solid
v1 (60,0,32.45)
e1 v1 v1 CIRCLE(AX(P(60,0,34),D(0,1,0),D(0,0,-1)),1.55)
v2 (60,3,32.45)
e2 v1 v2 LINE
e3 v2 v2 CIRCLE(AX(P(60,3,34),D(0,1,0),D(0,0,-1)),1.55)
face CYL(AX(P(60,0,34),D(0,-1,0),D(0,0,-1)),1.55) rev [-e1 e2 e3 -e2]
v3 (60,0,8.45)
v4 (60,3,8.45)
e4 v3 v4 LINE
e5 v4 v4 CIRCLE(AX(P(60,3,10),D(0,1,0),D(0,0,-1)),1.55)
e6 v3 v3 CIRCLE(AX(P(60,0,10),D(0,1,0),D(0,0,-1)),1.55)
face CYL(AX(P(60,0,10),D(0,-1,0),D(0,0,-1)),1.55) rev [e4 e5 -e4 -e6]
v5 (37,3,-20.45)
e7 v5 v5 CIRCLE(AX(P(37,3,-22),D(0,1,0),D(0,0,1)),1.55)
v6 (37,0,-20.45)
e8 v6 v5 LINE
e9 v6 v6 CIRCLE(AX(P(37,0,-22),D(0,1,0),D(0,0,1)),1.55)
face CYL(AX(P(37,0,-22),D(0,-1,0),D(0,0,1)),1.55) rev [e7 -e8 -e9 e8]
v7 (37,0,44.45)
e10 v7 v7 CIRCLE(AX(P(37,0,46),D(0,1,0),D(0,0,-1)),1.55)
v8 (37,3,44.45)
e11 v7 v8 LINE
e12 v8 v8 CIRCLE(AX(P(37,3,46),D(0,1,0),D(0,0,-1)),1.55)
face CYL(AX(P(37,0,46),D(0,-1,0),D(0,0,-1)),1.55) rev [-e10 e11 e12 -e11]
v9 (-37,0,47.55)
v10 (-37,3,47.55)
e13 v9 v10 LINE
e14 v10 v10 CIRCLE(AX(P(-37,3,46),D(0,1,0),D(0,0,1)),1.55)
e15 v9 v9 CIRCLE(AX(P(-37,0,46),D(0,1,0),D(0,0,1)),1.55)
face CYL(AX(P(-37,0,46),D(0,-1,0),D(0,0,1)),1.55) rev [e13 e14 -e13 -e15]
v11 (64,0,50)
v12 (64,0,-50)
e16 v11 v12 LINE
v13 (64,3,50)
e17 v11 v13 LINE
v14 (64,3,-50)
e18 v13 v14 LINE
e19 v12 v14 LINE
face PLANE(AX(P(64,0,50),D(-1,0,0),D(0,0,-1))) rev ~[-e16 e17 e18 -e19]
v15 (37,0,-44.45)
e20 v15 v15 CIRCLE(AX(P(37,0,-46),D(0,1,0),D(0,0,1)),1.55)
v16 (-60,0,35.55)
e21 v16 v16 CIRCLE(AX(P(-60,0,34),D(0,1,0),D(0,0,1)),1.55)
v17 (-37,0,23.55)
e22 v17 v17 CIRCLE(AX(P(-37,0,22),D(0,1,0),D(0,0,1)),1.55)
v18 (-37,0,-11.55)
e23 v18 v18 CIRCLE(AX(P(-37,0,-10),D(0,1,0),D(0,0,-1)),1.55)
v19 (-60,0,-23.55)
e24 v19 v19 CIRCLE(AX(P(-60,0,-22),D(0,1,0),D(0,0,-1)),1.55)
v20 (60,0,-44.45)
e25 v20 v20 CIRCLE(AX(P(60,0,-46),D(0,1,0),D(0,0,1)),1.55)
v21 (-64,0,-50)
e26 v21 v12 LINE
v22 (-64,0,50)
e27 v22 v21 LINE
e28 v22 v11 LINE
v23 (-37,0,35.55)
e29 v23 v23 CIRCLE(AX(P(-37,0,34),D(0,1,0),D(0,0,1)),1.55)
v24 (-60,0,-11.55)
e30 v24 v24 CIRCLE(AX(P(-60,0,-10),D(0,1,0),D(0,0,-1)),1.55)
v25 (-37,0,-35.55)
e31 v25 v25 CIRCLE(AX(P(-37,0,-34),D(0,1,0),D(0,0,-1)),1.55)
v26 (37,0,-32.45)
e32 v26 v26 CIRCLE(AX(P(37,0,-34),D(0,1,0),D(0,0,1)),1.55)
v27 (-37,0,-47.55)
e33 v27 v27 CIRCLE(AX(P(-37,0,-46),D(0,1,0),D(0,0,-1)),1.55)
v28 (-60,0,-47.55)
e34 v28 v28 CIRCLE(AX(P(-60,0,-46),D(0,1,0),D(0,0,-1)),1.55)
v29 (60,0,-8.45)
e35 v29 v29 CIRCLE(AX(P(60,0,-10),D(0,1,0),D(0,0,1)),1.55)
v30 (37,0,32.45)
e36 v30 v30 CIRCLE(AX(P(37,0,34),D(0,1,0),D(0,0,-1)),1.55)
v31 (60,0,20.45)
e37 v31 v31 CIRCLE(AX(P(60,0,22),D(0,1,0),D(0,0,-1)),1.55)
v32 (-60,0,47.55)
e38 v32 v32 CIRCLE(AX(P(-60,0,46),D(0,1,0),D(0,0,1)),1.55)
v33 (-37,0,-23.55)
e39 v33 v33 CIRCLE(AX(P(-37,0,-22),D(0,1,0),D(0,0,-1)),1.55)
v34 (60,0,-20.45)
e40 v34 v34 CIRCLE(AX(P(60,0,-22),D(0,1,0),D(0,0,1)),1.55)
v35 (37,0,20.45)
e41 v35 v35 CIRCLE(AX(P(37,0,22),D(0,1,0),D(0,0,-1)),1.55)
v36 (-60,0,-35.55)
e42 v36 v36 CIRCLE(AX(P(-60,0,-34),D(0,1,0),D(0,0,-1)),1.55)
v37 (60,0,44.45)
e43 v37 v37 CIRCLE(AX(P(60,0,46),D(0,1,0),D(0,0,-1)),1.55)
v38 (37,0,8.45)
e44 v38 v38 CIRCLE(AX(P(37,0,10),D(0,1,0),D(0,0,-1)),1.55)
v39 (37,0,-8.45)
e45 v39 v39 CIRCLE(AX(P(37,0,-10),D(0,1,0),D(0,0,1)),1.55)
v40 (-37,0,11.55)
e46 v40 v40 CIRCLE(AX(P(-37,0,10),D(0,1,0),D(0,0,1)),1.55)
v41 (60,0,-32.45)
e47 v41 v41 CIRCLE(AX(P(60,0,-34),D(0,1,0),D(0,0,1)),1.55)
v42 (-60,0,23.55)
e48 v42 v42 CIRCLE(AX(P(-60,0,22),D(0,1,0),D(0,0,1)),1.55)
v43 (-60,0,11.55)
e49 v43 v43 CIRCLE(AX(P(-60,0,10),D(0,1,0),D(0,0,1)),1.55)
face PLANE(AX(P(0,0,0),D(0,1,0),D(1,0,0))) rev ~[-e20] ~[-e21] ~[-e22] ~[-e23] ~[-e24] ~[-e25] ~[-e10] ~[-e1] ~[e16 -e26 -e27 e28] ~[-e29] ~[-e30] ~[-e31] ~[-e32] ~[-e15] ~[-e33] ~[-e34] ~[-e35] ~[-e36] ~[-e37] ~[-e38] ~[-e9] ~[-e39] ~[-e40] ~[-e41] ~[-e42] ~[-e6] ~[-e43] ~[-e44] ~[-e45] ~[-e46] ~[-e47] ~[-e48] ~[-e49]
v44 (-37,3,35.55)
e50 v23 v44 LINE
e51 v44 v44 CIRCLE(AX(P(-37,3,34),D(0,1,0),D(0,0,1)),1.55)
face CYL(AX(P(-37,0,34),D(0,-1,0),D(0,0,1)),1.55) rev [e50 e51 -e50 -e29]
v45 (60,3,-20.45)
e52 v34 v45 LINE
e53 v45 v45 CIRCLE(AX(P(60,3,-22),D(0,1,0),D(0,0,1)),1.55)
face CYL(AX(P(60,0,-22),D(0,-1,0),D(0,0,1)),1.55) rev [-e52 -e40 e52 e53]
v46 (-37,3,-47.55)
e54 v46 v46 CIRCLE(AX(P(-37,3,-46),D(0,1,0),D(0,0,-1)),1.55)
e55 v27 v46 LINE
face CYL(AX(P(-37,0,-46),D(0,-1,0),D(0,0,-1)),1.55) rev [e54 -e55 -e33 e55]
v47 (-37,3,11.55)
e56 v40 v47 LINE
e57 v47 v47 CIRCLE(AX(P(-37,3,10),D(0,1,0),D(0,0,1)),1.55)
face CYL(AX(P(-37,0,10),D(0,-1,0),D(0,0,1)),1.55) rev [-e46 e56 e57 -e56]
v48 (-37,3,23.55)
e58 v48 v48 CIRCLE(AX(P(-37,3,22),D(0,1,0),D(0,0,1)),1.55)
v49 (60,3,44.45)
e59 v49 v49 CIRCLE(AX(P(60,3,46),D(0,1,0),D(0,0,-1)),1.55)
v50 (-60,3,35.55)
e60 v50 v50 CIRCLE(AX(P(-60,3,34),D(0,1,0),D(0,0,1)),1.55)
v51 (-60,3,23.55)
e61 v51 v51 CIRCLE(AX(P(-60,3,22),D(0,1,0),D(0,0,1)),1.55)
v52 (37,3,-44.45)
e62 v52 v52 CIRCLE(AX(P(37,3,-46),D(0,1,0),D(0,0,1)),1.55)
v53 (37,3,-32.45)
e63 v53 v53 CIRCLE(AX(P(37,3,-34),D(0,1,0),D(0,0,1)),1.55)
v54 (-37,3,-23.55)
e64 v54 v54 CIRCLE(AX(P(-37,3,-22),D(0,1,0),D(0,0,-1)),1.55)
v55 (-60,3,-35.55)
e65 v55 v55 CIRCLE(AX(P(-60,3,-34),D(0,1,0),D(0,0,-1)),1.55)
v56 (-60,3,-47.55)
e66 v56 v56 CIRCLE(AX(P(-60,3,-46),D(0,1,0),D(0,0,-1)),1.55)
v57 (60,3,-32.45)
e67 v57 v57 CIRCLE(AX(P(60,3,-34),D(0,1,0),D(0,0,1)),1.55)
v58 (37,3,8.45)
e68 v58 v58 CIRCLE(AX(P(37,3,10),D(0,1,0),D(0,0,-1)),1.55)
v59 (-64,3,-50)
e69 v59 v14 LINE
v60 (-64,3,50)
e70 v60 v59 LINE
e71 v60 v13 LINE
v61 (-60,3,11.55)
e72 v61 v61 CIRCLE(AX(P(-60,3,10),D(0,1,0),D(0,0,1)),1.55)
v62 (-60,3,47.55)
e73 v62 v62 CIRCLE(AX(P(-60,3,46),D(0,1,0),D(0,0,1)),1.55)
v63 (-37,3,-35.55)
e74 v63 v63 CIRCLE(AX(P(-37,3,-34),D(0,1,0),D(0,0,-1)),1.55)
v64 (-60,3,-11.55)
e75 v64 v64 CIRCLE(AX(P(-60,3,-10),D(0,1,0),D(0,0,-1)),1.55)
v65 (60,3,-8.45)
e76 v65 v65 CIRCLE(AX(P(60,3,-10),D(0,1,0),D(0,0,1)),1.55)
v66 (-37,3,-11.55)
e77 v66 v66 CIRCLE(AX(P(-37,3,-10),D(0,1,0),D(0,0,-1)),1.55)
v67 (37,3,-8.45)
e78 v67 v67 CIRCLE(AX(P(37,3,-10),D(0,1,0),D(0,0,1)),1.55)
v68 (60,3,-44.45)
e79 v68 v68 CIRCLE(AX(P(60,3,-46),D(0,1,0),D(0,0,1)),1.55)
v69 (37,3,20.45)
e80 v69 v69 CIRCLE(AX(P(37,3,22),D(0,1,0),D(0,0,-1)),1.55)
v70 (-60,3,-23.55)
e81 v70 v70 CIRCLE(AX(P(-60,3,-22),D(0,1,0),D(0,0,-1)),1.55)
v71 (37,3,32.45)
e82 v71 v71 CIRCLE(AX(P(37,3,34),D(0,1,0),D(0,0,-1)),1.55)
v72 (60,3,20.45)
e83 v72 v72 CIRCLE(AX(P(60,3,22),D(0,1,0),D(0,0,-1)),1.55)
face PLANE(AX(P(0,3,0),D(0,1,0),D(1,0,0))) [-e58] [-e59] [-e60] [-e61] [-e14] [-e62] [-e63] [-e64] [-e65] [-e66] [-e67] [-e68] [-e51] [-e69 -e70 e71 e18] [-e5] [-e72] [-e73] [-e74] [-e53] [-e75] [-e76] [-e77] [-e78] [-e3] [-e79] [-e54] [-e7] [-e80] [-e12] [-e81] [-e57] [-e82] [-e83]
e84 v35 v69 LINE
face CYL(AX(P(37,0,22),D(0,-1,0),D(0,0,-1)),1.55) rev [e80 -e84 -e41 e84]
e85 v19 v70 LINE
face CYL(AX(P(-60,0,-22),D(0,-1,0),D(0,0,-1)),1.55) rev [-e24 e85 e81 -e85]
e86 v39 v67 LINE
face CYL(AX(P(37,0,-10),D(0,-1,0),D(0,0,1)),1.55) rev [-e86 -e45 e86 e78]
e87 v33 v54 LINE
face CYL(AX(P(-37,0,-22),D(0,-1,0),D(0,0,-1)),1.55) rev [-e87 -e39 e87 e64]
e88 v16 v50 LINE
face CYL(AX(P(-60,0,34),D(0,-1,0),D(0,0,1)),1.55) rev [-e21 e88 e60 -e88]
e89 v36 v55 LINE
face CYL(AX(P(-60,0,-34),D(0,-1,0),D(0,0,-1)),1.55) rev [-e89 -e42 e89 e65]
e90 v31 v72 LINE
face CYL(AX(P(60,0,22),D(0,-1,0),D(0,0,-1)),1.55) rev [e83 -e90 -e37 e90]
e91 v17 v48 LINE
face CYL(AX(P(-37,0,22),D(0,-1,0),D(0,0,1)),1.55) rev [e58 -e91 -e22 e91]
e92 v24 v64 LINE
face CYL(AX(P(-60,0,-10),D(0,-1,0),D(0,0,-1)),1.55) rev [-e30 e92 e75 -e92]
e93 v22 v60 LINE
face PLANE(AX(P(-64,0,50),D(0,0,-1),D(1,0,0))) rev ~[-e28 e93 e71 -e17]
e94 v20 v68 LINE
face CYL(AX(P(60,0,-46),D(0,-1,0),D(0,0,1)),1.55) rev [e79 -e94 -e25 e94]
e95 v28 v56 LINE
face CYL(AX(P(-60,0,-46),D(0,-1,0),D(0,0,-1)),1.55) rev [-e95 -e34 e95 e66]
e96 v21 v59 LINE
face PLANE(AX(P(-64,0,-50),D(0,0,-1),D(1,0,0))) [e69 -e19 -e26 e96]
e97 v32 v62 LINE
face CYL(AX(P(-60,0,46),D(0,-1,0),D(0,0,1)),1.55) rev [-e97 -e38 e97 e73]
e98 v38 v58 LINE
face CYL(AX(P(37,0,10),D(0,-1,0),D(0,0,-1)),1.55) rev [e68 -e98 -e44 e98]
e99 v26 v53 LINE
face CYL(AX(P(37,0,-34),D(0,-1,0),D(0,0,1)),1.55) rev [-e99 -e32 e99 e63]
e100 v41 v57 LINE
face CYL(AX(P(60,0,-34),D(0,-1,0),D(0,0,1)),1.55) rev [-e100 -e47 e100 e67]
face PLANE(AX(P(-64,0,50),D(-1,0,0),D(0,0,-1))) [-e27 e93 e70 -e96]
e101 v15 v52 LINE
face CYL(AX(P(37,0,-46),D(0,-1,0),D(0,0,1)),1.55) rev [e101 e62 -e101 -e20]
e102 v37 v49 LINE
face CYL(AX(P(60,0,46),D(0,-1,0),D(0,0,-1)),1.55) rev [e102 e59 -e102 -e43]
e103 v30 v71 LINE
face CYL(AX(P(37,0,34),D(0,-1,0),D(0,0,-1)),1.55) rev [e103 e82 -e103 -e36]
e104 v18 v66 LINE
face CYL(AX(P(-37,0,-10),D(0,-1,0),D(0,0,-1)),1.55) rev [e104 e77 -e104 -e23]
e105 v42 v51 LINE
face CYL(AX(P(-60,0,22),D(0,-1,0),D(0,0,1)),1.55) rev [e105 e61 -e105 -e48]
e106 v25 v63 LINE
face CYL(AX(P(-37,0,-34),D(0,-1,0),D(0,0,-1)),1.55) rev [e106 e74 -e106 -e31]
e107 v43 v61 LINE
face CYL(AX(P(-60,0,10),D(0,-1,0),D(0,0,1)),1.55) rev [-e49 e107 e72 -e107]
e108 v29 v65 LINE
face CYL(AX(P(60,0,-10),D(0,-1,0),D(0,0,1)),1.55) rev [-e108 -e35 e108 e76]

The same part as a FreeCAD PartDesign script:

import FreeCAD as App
import Part
import Sketcher

V = App.Vector

doc = App.newDocument("Part")
body = doc.addObject("PartDesign::Body", "Body")

sketch1 = body.newObject("Sketcher::SketchObject", "Sketch")
sketch1.AttachmentSupport = (doc.getObject("XZ_Plane"), [""])
sketch1.MapMode = "FlatFace"
sketch1.addGeometry([
    Part.LineSegment(V(-64, -50, 0), V(-64, 50, 0)),
    Part.LineSegment(V(-64, 50, 0), V(64, 50, 0)),
    Part.LineSegment(V(64, 50, 0), V(64, -50, 0)),
    Part.LineSegment(V(64, -50, 0), V(-64, -50, 0)),
    Part.Circle(V(-60, 46, 0), V(0, 0, 1), 1.6),
    Part.Circle(V(-37, 46, 0), V(0, 0, 1), 1.6),
    Part.Circle(V(-60, 34, 0), V(0, 0, 1), 1.6),
    Part.Circle(V(-37, 34, 0), V(0, 0, 1), 1.6),
    Part.Circle(V(-60, 22, 0), V(0, 0, 1), 1.6),
    Part.Circle(V(-37, 22, 0), V(0, 0, 1), 1.6),
    Part.Circle(V(-60, 10, 0), V(0, 0, 1), 1.6),
    Part.Circle(V(-37, 10, 0), V(0, 0, 1), 1.6),
    Part.Circle(V(37, 46, 0), V(0, 0, 1), 1.6),
    Part.Circle(V(60, 46, 0), V(0, 0, 1), 1.6),
    Part.Circle(V(37, 34, 0), V(0, 0, 1), 1.6),
    Part.Circle(V(60, 34, 0), V(0, 0, 1), 1.6),
    Part.Circle(V(37, 22, 0), V(0, 0, 1), 1.6),
    Part.Circle(V(60, 22, 0), V(0, 0, 1), 1.6),
    Part.Circle(V(37, 10, 0), V(0, 0, 1), 1.6),
    Part.Circle(V(60, 10, 0), V(0, 0, 1), 1.6),
    Part.Circle(V(-60, -10, 0), V(0, 0, 1), 1.6),
    Part.Circle(V(-37, -10, 0), V(0, 0, 1), 1.6),
    Part.Circle(V(-60, -22, 0), V(0, 0, 1), 1.6),
    Part.Circle(V(-37, -22, 0), V(0, 0, 1), 1.6),
    Part.Circle(V(-60, -34, 0), V(0, 0, 1), 1.6),
    Part.Circle(V(-37, -34, 0), V(0, 0, 1), 1.6),
    Part.Circle(V(-60, -46, 0), V(0, 0, 1), 1.6),
    Part.Circle(V(-37, -46, 0), V(0, 0, 1), 1.6),
    Part.Circle(V(37, -10, 0), V(0, 0, 1), 1.6),
    Part.Circle(V(60, -10, 0), V(0, 0, 1), 1.6),
    Part.Circle(V(37, -22, 0), V(0, 0, 1), 1.6),
    Part.Circle(V(60, -22, 0), V(0, 0, 1), 1.6),
    Part.Circle(V(37, -34, 0), V(0, 0, 1), 1.6),
    Part.Circle(V(60, -34, 0), V(0, 0, 1), 1.6),
    Part.Circle(V(37, -46, 0), V(0, 0, 1), 1.6),
    Part.Circle(V(60, -46, 0), V(0, 0, 1), 1.6),
], False)
sketch1.addConstraint([
    Sketcher.Constraint("Coincident", 0, 2, 1, 1),
    Sketcher.Constraint("Coincident", 1, 2, 2, 1),
    Sketcher.Constraint("Coincident", 2, 2, 3, 1),
    Sketcher.Constraint("Coincident", 3, 2, 0, 1),
    Sketcher.Constraint("Vertical", 0),
    Sketcher.Constraint("Horizontal", 1),
    Sketcher.Constraint("Vertical", 2),
    Sketcher.Constraint("Horizontal", 3),
    Sketcher.Constraint("Equal", 4, 5),
    Sketcher.Constraint("Equal", 5, 6),
    Sketcher.Constraint("Equal", 6, 7),
    Sketcher.Constraint("Equal", 7, 8),
    Sketcher.Constraint("Equal", 8, 9),
    Sketcher.Constraint("Equal", 9, 10),
    Sketcher.Constraint("Equal", 10, 11),
    Sketcher.Constraint("Equal", 11, 12),
    Sketcher.Constraint("Equal", 12, 13),
    Sketcher.Constraint("Equal", 13, 14),
    Sketcher.Constraint("Equal", 14, 15),
    Sketcher.Constraint("Equal", 15, 16),
    Sketcher.Constraint("Equal", 16, 17),
    Sketcher.Constraint("Equal", 17, 18),
    Sketcher.Constraint("Equal", 18, 19),
    Sketcher.Constraint("Equal", 19, 20),
    Sketcher.Constraint("Equal", 20, 21),
    Sketcher.Constraint("Equal", 21, 22),
    Sketcher.Constraint("Equal", 22, 23),
    Sketcher.Constraint("Equal", 23, 24),
    Sketcher.Constraint("Equal", 24, 25),
    Sketcher.Constraint("Equal", 25, 26),
    Sketcher.Constraint("Equal", 26, 27),
    Sketcher.Constraint("Equal", 27, 28),
    Sketcher.Constraint("Equal", 28, 29),
    Sketcher.Constraint("Equal", 29, 30),
    Sketcher.Constraint("Equal", 30, 31),
    Sketcher.Constraint("Equal", 31, 32),
    Sketcher.Constraint("Equal", 32, 33),
    Sketcher.Constraint("Equal", 33, 34),
    Sketcher.Constraint("Equal", 34, 35),
    Sketcher.Constraint("Symmetric", 19, 3, 20, 3, -1, 1),
    Sketcher.Constraint("Symmetric", 18, 3, 21, 3, -1, 1),
    Sketcher.Constraint("Symmetric", 17, 3, 22, 3, -1, 1),
    Sketcher.Constraint("Symmetric", 16, 3, 23, 3, -1, 1),
    Sketcher.Constraint("Symmetric", 15, 3, 24, 3, -1, 1),
    Sketcher.Constraint("Symmetric", 14, 3, 25, 3, -1, 1),
    Sketcher.Constraint("Symmetric", 13, 3, 26, 3, -1, 1),
    Sketcher.Constraint("Symmetric", 12, 3, 27, 3, -1, 1),
    Sketcher.Constraint("Symmetric", 11, 3, 28, 3, -1, 1),
    Sketcher.Constraint("Symmetric", 10, 3, 29, 3, -1, 1),
    Sketcher.Constraint("Symmetric", 9, 3, 30, 3, -1, 1),
    Sketcher.Constraint("Symmetric", 8, 3, 31, 3, -1, 1),
    Sketcher.Constraint("Symmetric", 7, 3, 32, 3, -1, 1),
    Sketcher.Constraint("Symmetric", 6, 3, 33, 3, -1, 1),
    Sketcher.Constraint("Symmetric", 5, 3, 34, 3, -1, 1),
    Sketcher.Constraint("Symmetric", 4, 3, 35, 3, -1, 1),
    Sketcher.Constraint("Symmetric", 0, 2, 2, 2, -1, 1),
    Sketcher.Constraint("Symmetric", 5, 3, 12, 3, -2),
    Sketcher.Constraint("Symmetric", 4, 3, 13, 3, -2),
    Sketcher.Constraint("Symmetric", 7, 3, 14, 3, -2),
    Sketcher.Constraint("Symmetric", 6, 3, 15, 3, -2),
    Sketcher.Constraint("Symmetric", 9, 3, 16, 3, -2),
    Sketcher.Constraint("Symmetric", 8, 3, 17, 3, -2),
    Sketcher.Constraint("Symmetric", 11, 3, 18, 3, -2),
    Sketcher.Constraint("Symmetric", 10, 3, 19, 3, -2),
    Sketcher.Constraint("Horizontal", 4, 3, 5, 3),
    Sketcher.Constraint("Horizontal", 6, 3, 7, 3),
    Sketcher.Constraint("Horizontal", 8, 3, 9, 3),
    Sketcher.Constraint("Horizontal", 10, 3, 11, 3),
    Sketcher.Constraint("Vertical", 4, 3, 6, 3),
    Sketcher.Constraint("Vertical", 5, 3, 7, 3),
    Sketcher.Constraint("Vertical", 6, 3, 8, 3),
    Sketcher.Constraint("Vertical", 7, 3, 9, 3),
    Sketcher.Constraint("Vertical", 8, 3, 10, 3),
    Sketcher.Constraint("Vertical", 9, 3, 11, 3),
    Sketcher.Constraint("Diameter", 4, 3.1),
    Sketcher.Constraint("DistanceX", 1, 1, 1, 2, 128.0),
    Sketcher.Constraint("DistanceY", 0, 1, 0, 2, 100.0),
    Sketcher.Constraint("DistanceX", 4, 3, -1, 1, 60.0),
    Sketcher.Constraint("DistanceY", -1, 1, 4, 3, 46.0),
    Sketcher.Constraint("DistanceX", 5, 3, -1, 1, 37.0),
    Sketcher.Constraint("DistanceY", -1, 1, 6, 3, 34.0),
    Sketcher.Constraint("DistanceY", -1, 1, 8, 3, 22.0),
    Sketcher.Constraint("DistanceY", -1, 1, 10, 3, 10.0),
])
pad1 = body.newObject("PartDesign::Pad", "Pad")
pad1.Profile = sketch1
pad1.Length = 3
pad1.Reversed = True

doc.recompute()
